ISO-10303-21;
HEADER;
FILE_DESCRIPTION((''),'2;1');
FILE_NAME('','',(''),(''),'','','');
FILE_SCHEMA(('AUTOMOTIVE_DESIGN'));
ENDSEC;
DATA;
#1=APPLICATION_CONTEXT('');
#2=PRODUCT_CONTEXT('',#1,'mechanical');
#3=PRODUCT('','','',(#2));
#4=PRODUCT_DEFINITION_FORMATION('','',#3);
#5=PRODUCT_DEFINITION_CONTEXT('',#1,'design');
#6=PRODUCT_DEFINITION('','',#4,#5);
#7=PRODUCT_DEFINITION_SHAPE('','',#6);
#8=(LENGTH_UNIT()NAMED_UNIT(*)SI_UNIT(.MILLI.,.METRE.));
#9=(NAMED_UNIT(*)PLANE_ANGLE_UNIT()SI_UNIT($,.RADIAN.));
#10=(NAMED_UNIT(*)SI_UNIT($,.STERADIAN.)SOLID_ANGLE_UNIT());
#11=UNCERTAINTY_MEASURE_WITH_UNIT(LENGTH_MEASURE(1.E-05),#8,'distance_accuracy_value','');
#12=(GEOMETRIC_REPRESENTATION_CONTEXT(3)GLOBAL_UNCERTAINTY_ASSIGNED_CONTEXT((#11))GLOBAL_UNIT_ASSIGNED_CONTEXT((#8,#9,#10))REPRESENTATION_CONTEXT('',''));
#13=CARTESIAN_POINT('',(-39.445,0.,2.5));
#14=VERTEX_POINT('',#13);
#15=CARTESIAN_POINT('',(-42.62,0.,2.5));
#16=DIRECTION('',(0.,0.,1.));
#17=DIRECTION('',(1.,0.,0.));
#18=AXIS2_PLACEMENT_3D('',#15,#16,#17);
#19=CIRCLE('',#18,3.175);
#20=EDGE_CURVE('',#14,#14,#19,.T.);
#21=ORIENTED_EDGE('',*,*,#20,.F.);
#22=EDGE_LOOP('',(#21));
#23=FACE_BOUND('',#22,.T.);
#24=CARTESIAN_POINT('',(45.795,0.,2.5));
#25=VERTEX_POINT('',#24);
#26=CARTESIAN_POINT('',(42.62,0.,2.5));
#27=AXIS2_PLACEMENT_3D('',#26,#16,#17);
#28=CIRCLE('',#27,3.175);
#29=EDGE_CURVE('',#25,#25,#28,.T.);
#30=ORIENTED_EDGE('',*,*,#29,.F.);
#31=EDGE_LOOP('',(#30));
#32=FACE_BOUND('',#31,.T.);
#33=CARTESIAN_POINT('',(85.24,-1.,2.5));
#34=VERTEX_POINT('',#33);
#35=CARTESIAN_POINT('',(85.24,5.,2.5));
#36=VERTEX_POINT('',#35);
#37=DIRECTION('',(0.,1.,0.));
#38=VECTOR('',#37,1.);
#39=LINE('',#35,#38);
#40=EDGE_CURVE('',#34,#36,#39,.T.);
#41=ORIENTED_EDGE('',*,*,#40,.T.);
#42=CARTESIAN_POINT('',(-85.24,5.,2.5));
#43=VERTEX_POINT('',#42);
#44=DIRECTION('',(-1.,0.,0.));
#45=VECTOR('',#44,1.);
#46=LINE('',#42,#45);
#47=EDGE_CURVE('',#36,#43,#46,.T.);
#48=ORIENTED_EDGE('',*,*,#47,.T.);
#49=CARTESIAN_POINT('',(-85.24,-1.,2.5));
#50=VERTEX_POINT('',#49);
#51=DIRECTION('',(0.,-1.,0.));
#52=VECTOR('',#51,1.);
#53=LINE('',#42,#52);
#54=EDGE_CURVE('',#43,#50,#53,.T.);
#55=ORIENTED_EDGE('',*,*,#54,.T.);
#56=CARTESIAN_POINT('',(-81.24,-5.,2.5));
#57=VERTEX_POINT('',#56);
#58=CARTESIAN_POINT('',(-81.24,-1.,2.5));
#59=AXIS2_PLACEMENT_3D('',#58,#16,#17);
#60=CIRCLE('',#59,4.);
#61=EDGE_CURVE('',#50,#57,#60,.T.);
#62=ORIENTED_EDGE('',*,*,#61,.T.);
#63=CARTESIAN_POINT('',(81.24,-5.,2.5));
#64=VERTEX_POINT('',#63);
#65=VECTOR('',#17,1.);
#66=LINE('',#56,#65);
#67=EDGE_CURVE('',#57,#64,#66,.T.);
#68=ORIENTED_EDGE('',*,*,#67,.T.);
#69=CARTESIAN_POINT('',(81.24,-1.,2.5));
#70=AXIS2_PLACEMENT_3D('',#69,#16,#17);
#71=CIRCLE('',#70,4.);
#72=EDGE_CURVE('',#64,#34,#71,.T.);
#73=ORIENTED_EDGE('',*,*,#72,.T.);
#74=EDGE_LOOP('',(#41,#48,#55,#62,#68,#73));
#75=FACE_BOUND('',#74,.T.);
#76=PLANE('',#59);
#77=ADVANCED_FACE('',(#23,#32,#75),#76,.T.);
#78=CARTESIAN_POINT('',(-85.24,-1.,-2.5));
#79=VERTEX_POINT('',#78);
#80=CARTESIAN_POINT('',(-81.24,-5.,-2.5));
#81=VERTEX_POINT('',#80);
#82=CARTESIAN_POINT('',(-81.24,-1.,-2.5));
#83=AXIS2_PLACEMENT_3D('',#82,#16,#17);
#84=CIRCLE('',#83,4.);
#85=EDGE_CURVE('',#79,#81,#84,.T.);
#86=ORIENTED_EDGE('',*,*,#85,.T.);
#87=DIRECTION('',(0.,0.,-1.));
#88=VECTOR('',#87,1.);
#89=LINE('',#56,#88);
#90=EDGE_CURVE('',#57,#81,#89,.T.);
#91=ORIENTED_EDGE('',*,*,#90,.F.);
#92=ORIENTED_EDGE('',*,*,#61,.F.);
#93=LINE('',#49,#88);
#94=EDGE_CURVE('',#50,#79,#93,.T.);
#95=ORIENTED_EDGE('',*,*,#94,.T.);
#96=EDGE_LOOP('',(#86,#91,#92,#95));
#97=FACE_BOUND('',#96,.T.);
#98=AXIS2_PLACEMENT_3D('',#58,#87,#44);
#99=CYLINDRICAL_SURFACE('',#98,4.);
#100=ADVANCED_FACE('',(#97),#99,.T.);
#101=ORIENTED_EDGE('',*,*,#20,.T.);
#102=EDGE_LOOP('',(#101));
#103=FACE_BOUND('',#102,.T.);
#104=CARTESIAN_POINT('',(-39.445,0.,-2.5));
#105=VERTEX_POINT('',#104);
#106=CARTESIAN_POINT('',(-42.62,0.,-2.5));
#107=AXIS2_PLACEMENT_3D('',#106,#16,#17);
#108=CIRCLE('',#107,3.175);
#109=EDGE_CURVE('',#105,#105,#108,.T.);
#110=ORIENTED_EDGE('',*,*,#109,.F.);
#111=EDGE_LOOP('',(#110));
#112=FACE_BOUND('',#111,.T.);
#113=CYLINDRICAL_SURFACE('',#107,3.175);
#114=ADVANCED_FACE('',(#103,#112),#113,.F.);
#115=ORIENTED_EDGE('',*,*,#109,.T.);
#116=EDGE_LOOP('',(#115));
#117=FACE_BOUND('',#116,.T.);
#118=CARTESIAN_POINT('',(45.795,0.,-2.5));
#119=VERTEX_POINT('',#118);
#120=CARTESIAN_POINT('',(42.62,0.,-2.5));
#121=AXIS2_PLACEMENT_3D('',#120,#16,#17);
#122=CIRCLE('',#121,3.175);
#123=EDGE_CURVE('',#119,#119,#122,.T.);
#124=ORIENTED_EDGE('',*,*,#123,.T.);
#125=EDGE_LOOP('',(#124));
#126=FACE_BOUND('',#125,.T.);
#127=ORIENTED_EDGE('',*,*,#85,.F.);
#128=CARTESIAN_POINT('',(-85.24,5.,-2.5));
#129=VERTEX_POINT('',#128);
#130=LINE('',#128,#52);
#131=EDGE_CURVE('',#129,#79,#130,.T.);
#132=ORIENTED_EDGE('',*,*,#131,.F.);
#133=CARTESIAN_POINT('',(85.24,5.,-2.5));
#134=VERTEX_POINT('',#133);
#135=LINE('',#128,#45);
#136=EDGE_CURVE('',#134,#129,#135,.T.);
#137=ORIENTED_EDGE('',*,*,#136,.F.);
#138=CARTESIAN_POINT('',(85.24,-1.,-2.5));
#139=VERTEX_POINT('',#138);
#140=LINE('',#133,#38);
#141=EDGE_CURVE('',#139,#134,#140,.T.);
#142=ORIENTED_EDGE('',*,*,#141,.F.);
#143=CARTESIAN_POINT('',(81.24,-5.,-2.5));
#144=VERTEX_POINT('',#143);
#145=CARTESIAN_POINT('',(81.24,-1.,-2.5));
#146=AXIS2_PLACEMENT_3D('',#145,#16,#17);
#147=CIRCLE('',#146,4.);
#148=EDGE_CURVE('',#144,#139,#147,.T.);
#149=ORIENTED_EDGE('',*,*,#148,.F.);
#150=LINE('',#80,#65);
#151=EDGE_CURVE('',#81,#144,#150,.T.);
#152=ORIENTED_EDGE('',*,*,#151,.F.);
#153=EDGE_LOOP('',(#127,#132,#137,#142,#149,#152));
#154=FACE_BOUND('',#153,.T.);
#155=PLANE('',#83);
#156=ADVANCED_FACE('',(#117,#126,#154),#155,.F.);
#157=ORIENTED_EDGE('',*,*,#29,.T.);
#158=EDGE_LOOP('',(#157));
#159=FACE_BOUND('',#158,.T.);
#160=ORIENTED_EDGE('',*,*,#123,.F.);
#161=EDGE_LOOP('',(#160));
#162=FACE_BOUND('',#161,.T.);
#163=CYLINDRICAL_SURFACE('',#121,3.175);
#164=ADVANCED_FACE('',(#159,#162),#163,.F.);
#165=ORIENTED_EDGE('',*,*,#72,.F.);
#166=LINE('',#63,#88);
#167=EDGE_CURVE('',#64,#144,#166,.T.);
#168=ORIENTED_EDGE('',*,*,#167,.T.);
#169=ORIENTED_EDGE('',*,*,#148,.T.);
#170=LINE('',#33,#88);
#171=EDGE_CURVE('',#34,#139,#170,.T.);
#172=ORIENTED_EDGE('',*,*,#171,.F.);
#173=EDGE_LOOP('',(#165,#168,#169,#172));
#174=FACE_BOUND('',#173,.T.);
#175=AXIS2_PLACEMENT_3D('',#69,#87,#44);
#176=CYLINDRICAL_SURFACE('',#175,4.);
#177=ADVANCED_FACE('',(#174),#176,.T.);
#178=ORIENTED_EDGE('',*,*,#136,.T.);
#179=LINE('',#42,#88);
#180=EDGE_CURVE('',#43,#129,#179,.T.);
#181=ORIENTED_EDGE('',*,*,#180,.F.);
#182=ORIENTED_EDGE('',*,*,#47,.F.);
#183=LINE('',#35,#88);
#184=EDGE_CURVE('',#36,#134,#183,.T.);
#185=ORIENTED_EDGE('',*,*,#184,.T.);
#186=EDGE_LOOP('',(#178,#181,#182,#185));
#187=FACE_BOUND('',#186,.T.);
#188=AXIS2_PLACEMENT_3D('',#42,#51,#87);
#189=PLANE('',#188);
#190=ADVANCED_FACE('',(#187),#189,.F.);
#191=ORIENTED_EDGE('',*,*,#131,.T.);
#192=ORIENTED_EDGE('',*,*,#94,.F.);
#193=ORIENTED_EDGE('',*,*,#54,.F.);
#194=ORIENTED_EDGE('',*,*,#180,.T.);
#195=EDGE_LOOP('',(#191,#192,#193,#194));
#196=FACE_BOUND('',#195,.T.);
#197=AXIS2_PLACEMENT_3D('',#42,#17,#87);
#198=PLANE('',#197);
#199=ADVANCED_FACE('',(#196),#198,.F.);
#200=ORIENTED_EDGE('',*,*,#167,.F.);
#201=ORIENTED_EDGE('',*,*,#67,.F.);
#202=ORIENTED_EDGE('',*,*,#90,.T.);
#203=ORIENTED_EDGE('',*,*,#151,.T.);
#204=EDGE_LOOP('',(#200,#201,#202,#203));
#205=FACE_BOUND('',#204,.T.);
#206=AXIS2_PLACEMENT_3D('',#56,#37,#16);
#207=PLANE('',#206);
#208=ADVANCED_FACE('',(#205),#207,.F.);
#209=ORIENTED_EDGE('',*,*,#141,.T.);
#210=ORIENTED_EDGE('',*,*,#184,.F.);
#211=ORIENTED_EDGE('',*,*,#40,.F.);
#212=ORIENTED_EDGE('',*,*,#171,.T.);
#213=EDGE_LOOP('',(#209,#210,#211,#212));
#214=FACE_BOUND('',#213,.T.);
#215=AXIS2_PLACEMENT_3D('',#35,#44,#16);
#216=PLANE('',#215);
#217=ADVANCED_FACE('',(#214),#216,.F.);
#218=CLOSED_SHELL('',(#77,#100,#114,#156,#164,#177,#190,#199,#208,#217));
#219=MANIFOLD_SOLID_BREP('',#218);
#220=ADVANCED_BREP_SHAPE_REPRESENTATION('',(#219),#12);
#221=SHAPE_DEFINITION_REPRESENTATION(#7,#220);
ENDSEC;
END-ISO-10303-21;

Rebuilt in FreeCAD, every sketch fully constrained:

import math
import FreeCAD as App
import Part
import Sketcher

doc = App.newDocument("Part")
body = doc.addObject("PartDesign::Body", "Body")

sketch1 = doc.addObject("Sketcher::SketchObject", "Sketch")
body.addObject(sketch1)
sketch1.AttachmentSupport = (doc.XY_Plane, [""])
sketch1.MapMode = "FlatFace"
sketch1.addGeometry(Part.LineSegment(App.Vector(85.2, 5, 0), App.Vector(-85.2, 5, 0)), False)
sketch1.addGeometry(Part.LineSegment(App.Vector(-85.2, 5, 0), App.Vector(-85.2, -1, 0)), False)
sketch1.addGeometry(Part.ArcOfCircle(Part.Circle(App.Vector(-81.2, -1, 0), App.Vector(0, 0, 1), 4), math.radians(180), math.radians(270)), False)
sketch1.addGeometry(Part.LineSegment(App.Vector(-81.2, -5, 0), App.Vector(81.2, -5, 0)), False)
sketch1.addGeometry(Part.ArcOfCircle(Part.Circle(App.Vector(81.2, -1, 0), App.Vector(0, 0, 1), 4), math.radians(-90), math.radians(0)), False)
sketch1.addGeometry(Part.LineSegment(App.Vector(85.2, -1, 0), App.Vector(85.2, 5, 0)), False)
sketch1.addConstraint(Sketcher.Constraint("Coincident", 0, 2, 1, 1))
sketch1.addConstraint(Sketcher.Constraint("Tangent", 1, 2, 2, 1))
sketch1.addConstraint(Sketcher.Constraint("Tangent", 2, 2, 3, 1))
sketch1.addConstraint(Sketcher.Constraint("Tangent", 3, 2, 4, 1))
sketch1.addConstraint(Sketcher.Constraint("Tangent", 4, 2, 5, 1))
sketch1.addConstraint(Sketcher.Constraint("Coincident", 5, 2, 0, 1))
sketch1.addConstraint(Sketcher.Constraint("Horizontal", 0))
sketch1.addConstraint(Sketcher.Constraint("Vertical", 1))
sketch1.addConstraint(Sketcher.Constraint("Horizontal", 3))
sketch1.addConstraint(Sketcher.Constraint("Vertical", 5))
sketch1.addConstraint(Sketcher.Constraint("Equal", 2, 4))
sketch1.addConstraint(Sketcher.Constraint("Radius", 2, 4.0))
sketch1.addConstraint(Sketcher.Constraint("DistanceY", 1, 2, 1, 1, 6.0))
sketch1.addConstraint(Sketcher.Constraint("DistanceY", 2, 3, -1, 1, 1.0))
sketch1.addConstraint(Sketcher.Constraint("DistanceX", 0, 2, 0, 1, 170.48))
sketch1.addConstraint(Sketcher.Constraint("DistanceX", 2, 3, -1, 1, 81.24))
pad1 = doc.addObject("PartDesign::Pad", "Pad")
body.addObject(pad1)
pad1.Profile = sketch1
pad1.Length = 5
pad1.Midplane = True

sketch2 = doc.addObject("Sketcher::SketchObject", "Sketch001")
body.addObject(sketch2)
sketch2.AttachmentSupport = (doc.XY_Plane, [""])
sketch2.MapMode = "FlatFace"
sketch2.AttachmentOffset = App.Placement(App.Vector(0, 0, 2.5), App.Rotation())
sketch2.addGeometry(Part.Circle(App.Vector(42.6, 0, 0), App.Vector(0, 0, 1), 3.2), False)
sketch2.addGeometry(Part.Circle(App.Vector(-42.6, 0, 0), App.Vector(0, 0, 1), 3.2), False)
sketch2.addConstraint(Sketcher.Constraint("Equal", 0, 1))
sketch2.addConstraint(Sketcher.Constraint("Symmetric", 0, 3, 1, 3, -1, 1))
sketch2.addConstraint(Sketcher.Constraint("PointOnObject", 0, 3, -1))
sketch2.addConstraint(Sketcher.Constraint("Diameter", 0, 6.35))
sketch2.addConstraint(Sketcher.Constraint("DistanceX", -1, 1, 0, 3, 42.62))
pocket1 = doc.addObject("PartDesign::Pocket", "Pocket")
body.addObject(pocket1)
pocket1.Profile = sketch2
pocket1.Type = "ThroughAll"

doc.recompute()
